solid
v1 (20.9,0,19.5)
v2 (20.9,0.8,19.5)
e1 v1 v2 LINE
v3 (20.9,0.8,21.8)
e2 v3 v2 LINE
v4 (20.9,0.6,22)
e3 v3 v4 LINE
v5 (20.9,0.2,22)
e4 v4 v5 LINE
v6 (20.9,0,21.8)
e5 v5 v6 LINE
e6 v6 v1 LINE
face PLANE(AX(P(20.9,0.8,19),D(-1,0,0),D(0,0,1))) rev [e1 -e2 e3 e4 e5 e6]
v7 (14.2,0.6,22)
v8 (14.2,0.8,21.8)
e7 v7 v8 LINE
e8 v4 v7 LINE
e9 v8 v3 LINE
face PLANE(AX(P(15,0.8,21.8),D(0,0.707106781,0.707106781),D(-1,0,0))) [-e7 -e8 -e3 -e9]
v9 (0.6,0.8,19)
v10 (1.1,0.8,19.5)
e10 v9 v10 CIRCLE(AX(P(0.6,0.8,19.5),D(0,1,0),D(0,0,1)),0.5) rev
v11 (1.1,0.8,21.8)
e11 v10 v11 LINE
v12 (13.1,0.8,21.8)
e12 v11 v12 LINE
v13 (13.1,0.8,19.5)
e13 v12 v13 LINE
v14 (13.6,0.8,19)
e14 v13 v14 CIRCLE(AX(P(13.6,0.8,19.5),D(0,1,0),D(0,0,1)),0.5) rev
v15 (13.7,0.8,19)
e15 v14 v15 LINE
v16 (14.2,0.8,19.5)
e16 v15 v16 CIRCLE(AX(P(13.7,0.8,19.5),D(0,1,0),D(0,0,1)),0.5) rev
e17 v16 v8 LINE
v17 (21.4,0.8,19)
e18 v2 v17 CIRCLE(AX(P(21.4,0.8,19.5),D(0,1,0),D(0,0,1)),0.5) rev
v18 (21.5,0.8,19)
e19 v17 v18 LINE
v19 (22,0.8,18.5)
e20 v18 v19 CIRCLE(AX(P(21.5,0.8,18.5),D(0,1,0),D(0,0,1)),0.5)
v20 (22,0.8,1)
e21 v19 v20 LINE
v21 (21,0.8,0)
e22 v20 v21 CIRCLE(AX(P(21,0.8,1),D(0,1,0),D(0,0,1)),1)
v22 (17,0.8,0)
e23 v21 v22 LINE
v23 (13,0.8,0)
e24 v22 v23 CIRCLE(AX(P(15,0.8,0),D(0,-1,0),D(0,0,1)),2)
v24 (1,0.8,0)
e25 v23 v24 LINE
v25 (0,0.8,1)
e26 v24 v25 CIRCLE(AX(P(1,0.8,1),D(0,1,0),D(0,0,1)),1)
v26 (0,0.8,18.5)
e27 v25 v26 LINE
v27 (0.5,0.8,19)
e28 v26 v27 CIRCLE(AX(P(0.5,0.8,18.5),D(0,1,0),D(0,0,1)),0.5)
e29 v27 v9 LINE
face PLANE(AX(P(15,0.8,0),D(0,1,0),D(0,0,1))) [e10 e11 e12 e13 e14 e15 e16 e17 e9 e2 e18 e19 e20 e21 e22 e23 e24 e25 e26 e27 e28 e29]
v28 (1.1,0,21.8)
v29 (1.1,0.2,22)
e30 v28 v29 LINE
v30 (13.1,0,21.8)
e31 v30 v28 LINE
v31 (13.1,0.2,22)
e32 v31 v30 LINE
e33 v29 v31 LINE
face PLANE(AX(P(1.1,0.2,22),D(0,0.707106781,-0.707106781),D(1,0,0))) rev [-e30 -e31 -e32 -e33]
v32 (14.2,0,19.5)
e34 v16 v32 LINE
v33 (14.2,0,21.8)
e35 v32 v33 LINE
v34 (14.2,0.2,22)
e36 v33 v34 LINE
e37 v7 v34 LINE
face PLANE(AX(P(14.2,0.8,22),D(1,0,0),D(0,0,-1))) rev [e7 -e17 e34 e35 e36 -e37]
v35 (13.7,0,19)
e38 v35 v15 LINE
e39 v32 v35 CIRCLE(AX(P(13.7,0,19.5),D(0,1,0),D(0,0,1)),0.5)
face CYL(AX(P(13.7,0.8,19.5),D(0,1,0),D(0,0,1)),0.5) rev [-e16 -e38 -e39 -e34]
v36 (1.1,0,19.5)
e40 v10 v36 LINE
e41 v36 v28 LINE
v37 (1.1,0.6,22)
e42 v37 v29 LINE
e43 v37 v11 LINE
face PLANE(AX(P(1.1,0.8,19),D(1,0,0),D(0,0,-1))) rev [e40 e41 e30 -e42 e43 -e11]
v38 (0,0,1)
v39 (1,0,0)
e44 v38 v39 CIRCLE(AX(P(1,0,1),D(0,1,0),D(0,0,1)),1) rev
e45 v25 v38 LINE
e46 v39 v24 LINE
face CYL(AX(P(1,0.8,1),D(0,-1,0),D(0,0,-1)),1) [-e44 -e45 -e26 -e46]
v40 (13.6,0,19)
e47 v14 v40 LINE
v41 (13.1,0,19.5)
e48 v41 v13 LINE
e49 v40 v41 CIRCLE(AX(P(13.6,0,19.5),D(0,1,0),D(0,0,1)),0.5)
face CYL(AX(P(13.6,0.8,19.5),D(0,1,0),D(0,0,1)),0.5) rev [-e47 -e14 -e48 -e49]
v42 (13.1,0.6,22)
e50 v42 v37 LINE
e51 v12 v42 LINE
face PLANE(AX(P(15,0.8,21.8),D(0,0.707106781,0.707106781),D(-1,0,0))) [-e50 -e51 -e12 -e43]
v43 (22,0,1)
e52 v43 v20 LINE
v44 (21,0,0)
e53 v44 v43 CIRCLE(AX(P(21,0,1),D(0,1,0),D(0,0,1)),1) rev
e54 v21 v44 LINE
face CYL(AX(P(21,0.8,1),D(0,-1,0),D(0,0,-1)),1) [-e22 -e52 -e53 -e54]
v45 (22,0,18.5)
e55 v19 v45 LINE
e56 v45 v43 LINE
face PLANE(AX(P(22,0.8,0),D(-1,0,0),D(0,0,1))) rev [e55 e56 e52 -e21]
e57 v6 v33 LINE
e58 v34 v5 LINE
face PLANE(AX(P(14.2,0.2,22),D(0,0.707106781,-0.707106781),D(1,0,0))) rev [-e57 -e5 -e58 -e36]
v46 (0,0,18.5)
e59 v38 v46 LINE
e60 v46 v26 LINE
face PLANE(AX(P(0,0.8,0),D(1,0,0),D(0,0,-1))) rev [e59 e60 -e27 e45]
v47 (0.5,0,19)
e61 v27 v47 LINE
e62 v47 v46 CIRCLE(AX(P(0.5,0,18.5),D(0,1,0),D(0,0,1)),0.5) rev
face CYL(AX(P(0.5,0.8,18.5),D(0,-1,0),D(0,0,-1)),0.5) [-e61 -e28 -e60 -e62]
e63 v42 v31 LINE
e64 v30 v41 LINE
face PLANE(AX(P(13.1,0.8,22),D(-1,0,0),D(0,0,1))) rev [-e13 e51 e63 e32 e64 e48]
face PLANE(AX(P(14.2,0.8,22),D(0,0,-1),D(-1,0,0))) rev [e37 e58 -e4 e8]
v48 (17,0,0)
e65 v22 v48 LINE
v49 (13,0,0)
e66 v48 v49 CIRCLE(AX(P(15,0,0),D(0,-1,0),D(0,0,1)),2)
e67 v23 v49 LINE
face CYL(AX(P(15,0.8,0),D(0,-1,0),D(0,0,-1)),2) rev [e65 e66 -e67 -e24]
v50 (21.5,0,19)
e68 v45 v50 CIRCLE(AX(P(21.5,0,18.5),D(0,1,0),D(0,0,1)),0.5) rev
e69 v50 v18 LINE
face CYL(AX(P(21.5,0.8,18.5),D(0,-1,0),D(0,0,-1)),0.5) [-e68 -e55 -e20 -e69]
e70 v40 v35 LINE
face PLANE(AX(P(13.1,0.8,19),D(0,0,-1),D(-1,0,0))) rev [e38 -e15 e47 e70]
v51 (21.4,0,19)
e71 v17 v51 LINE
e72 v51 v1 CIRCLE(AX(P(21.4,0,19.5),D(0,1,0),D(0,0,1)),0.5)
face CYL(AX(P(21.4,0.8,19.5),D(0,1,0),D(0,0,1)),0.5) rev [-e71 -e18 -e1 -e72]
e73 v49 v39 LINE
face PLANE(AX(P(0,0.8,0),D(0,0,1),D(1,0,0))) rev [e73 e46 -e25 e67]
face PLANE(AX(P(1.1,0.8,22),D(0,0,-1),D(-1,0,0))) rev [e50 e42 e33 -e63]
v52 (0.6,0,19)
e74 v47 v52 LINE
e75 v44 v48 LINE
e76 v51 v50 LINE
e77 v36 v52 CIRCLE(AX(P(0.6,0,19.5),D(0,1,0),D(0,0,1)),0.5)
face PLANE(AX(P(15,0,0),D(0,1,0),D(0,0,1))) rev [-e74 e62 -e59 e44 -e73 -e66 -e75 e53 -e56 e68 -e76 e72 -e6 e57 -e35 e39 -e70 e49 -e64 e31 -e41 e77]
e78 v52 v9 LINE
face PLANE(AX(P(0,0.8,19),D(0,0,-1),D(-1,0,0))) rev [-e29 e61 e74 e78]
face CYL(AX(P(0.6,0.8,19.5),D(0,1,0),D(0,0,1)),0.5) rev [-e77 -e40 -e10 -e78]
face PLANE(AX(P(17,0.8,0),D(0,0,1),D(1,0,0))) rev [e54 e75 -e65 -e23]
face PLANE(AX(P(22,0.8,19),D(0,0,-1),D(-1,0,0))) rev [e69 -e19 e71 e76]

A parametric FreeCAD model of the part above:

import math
import FreeCAD as App
import Part
import Sketcher
Q = App.Units.Quantity


def edges_at(feature, points):
    """Names of the edges that pass closest to the given points."""
    edges = feature.Shape.Edges
    near = lambda p: min(range(len(edges)), key=lambda i: edges[i].distToShape(Part.Vertex(*p))[0])
    return sorted({f"Edge{near(p) + 1}" for p in points})

doc = App.newDocument("Part")
body = doc.addObject("PartDesign::Body", "Body")

sketch1 = body.newObject("Sketcher::SketchObject", "Sketch")
sketch1.AttachmentSupport = (doc.getObject("XZ_Plane"), [""])
sketch1.MapMode = "FlatFace"
sketch1.addGeometry(Part.LineSegment(App.Vector(14.2, 22, 0), App.Vector(20.9, 22, 0)), False)
sketch1.addGeometry(Part.LineSegment(App.Vector(20.9, 22, 0), App.Vector(20.9, 19, 0)), False)
sketch1.addGeometry(Part.LineSegment(App.Vector(20.9, 19, 0), App.Vector(22, 19, 0)), False)
sketch1.addGeometry(Part.LineSegment(App.Vector(22, 19, 0), App.Vector(22, 0, 0)), False)
sketch1.addGeometry(Part.LineSegment(App.Vector(22, 0, 0), App.Vector(17, 0, 0)), False)
sketch1.addGeometry(Part.ArcOfCircle(Part.Circle(App.Vector(15, 0, 0), App.Vector(0, 0, 1), 2), math.radians(0), math.radians(180)), False)
sketch1.addGeometry(Part.LineSegment(App.Vector(13, 0, 0), App.Vector(0, 0, 0)), False)
sketch1.addGeometry(Part.LineSegment(App.Vector(0, 0, 0), App.Vector(0, 19, 0)), False)
sketch1.addGeometry(Part.LineSegment(App.Vector(0, 19, 0), App.Vector(1.1, 19, 0)), False)
sketch1.addGeometry(Part.LineSegment(App.Vector(1.1, 19, 0), App.Vector(1.1, 22, 0)), False)
sketch1.addGeometry(Part.LineSegment(App.Vector(1.1, 22, 0), App.Vector(13.1, 22, 0)), False)
sketch1.addGeometry(Part.LineSegment(App.Vector(13.1, 22, 0), App.Vector(13.1, 19, 0)), False)
sketch1.addGeometry(Part.LineSegment(App.Vector(13.1, 19, 0), App.Vector(14.2, 19, 0)), False)
sketch1.addGeometry(Part.LineSegment(App.Vector(14.2, 19, 0), App.Vector(14.2, 22, 0)), False)
sketch1.addConstraint(Sketcher.Constraint("Coincident", 0, 2, 1, 1))
sketch1.addConstraint(Sketcher.Constraint("Coincident", 1, 2, 2, 1))
sketch1.addConstraint(Sketcher.Constraint("Coincident", 2, 2, 3, 1))
sketch1.addConstraint(Sketcher.Constraint("Coincident", 3, 2, 4, 1))
sketch1.addConstraint(Sketcher.Constraint("Coincident", 4, 2, 5, 1))
sketch1.addConstraint(Sketcher.Constraint("Coincident", 5, 2, 6, 1))
sketch1.addConstraint(Sketcher.Constraint("Coincident", 6, 2, 7, 1))
sketch1.addConstraint(Sketcher.Constraint("Coincident", 7, 2, 8, 1))
sketch1.addConstraint(Sketcher.Constraint("Coincident", 8, 2, 9, 1))
sketch1.addConstraint(Sketcher.Constraint("Coincident", 9, 2, 10, 1))
sketch1.addConstraint(Sketcher.Constraint("Coincident", 10, 2, 11, 1))
sketch1.addConstraint(Sketcher.Constraint("Coincident", 11, 2, 12, 1))
sketch1.addConstraint(Sketcher.Constraint("Coincident", 12, 2, 13, 1))
sketch1.addConstraint(Sketcher.Constraint("Coincident", 13, 2, 0, 1))
sketch1.addConstraint(Sketcher.Constraint("Horizontal", 0))
sketch1.addConstraint(Sketcher.Constraint("Vertical", 1))
sketch1.addConstraint(Sketcher.Constraint("Horizontal", 2))
sketch1.addConstraint(Sketcher.Constraint("Vertical", 3))
sketch1.addConstraint(Sketcher.Constraint("Horizontal", 4))
sketch1.addConstraint(Sketcher.Constraint("Horizontal", 6))
sketch1.addConstraint(Sketcher.Constraint("Vertical", 7))
sketch1.addConstraint(Sketcher.Constraint("Horizontal", 8))
sketch1.addConstraint(Sketcher.Constraint("Vertical", 9))
sketch1.addConstraint(Sketcher.Constraint("Horizontal", 10))
sketch1.addConstraint(Sketcher.Constraint("Vertical", 11))
sketch1.addConstraint(Sketcher.Constraint("Horizontal", 12))
sketch1.addConstraint(Sketcher.Constraint("Vertical", 13))
sketch1.addConstraint(Sketcher.Constraint("Coincident", 6, 2, -1, 1))
sketch1.addConstraint(Sketcher.Constraint("PointOnObject", 5, 3, -1))
sketch1.addConstraint(Sketcher.Constraint("PointOnObject", 3, 2, -1))
sketch1.addConstraint(Sketcher.Constraint("Horizontal", 2, 2, 7, 2))
sketch1.addConstraint(Sketcher.Constraint("Horizontal", 0, 2, 9, 2))
sketch1.addConstraint(Sketcher.Constraint("Horizontal", 8, 2, 11, 2))
sketch1.addConstraint(Sketcher.Constraint("Equal", 2, 8))
sketch1.addConstraint(Sketcher.Constraint("Equal", 8, 12))
sketch1.addConstraint(Sketcher.Constraint("Radius", 5, Q("2 mm")))
sketch1.addConstraint(Sketcher.Constraint("DistanceX", 4, 2, 4, 1, Q("5 mm")))
sketch1.addConstraint(Sketcher.Constraint("DistanceX", 6, 2, 6, 1, Q("13 mm")))
sketch1.addConstraint(Sketcher.Constraint("DistanceX", 10, 1, 10, 2, Q("12 mm")))
sketch1.addConstraint(Sketcher.Constraint("DistanceY", 1, 2, 1, 1, Q("3 mm")))
sketch1.addConstraint(Sketcher.Constraint("DistanceY", 3, 2, 3, 1, Q("19 mm")))
sketch1.addConstraint(Sketcher.Constraint("DistanceX", 0, 1, 0, 2, Q("6.7 mm")))
pad1 = body.newObject("PartDesign::Pad", "Pad")
pad1.Profile = sketch1
pad1.Length = 0.8
pad1.Reversed = True
doc.recompute()

fillet = body.newObject("PartDesign::Fillet", "Fillet")
fillet.Base = (pad1, edges_at(pad1, [(0, 0.4, 0), (22, 0.4, 0)]))
fillet.Radius = 1
doc.recompute()

fillet2 = body.newObject("PartDesign::Fillet", "Fillet001")
fillet2.Base = (fillet, edges_at(fillet, [
    (22, 0.4, 19),
    (20.9, 0.4, 19),
    (14.2, 0.4, 19),
    (13.1, 0.4, 19),
    (1.1, 0.4, 19),
    (0, 0.4, 19),
]))
fillet2.Radius = 0.5
doc.recompute()

chamfer = body.newObject("PartDesign::Chamfer", "Chamfer")
chamfer.Base = (fillet2, edges_at(fillet2, [
    (17.55, 0, 22),
    (7.1, 0.8, 22),
    (7.1, 0, 22),
    (17.55, 0.8, 22),
]))
chamfer.Size = 0.2

doc.recompute()
